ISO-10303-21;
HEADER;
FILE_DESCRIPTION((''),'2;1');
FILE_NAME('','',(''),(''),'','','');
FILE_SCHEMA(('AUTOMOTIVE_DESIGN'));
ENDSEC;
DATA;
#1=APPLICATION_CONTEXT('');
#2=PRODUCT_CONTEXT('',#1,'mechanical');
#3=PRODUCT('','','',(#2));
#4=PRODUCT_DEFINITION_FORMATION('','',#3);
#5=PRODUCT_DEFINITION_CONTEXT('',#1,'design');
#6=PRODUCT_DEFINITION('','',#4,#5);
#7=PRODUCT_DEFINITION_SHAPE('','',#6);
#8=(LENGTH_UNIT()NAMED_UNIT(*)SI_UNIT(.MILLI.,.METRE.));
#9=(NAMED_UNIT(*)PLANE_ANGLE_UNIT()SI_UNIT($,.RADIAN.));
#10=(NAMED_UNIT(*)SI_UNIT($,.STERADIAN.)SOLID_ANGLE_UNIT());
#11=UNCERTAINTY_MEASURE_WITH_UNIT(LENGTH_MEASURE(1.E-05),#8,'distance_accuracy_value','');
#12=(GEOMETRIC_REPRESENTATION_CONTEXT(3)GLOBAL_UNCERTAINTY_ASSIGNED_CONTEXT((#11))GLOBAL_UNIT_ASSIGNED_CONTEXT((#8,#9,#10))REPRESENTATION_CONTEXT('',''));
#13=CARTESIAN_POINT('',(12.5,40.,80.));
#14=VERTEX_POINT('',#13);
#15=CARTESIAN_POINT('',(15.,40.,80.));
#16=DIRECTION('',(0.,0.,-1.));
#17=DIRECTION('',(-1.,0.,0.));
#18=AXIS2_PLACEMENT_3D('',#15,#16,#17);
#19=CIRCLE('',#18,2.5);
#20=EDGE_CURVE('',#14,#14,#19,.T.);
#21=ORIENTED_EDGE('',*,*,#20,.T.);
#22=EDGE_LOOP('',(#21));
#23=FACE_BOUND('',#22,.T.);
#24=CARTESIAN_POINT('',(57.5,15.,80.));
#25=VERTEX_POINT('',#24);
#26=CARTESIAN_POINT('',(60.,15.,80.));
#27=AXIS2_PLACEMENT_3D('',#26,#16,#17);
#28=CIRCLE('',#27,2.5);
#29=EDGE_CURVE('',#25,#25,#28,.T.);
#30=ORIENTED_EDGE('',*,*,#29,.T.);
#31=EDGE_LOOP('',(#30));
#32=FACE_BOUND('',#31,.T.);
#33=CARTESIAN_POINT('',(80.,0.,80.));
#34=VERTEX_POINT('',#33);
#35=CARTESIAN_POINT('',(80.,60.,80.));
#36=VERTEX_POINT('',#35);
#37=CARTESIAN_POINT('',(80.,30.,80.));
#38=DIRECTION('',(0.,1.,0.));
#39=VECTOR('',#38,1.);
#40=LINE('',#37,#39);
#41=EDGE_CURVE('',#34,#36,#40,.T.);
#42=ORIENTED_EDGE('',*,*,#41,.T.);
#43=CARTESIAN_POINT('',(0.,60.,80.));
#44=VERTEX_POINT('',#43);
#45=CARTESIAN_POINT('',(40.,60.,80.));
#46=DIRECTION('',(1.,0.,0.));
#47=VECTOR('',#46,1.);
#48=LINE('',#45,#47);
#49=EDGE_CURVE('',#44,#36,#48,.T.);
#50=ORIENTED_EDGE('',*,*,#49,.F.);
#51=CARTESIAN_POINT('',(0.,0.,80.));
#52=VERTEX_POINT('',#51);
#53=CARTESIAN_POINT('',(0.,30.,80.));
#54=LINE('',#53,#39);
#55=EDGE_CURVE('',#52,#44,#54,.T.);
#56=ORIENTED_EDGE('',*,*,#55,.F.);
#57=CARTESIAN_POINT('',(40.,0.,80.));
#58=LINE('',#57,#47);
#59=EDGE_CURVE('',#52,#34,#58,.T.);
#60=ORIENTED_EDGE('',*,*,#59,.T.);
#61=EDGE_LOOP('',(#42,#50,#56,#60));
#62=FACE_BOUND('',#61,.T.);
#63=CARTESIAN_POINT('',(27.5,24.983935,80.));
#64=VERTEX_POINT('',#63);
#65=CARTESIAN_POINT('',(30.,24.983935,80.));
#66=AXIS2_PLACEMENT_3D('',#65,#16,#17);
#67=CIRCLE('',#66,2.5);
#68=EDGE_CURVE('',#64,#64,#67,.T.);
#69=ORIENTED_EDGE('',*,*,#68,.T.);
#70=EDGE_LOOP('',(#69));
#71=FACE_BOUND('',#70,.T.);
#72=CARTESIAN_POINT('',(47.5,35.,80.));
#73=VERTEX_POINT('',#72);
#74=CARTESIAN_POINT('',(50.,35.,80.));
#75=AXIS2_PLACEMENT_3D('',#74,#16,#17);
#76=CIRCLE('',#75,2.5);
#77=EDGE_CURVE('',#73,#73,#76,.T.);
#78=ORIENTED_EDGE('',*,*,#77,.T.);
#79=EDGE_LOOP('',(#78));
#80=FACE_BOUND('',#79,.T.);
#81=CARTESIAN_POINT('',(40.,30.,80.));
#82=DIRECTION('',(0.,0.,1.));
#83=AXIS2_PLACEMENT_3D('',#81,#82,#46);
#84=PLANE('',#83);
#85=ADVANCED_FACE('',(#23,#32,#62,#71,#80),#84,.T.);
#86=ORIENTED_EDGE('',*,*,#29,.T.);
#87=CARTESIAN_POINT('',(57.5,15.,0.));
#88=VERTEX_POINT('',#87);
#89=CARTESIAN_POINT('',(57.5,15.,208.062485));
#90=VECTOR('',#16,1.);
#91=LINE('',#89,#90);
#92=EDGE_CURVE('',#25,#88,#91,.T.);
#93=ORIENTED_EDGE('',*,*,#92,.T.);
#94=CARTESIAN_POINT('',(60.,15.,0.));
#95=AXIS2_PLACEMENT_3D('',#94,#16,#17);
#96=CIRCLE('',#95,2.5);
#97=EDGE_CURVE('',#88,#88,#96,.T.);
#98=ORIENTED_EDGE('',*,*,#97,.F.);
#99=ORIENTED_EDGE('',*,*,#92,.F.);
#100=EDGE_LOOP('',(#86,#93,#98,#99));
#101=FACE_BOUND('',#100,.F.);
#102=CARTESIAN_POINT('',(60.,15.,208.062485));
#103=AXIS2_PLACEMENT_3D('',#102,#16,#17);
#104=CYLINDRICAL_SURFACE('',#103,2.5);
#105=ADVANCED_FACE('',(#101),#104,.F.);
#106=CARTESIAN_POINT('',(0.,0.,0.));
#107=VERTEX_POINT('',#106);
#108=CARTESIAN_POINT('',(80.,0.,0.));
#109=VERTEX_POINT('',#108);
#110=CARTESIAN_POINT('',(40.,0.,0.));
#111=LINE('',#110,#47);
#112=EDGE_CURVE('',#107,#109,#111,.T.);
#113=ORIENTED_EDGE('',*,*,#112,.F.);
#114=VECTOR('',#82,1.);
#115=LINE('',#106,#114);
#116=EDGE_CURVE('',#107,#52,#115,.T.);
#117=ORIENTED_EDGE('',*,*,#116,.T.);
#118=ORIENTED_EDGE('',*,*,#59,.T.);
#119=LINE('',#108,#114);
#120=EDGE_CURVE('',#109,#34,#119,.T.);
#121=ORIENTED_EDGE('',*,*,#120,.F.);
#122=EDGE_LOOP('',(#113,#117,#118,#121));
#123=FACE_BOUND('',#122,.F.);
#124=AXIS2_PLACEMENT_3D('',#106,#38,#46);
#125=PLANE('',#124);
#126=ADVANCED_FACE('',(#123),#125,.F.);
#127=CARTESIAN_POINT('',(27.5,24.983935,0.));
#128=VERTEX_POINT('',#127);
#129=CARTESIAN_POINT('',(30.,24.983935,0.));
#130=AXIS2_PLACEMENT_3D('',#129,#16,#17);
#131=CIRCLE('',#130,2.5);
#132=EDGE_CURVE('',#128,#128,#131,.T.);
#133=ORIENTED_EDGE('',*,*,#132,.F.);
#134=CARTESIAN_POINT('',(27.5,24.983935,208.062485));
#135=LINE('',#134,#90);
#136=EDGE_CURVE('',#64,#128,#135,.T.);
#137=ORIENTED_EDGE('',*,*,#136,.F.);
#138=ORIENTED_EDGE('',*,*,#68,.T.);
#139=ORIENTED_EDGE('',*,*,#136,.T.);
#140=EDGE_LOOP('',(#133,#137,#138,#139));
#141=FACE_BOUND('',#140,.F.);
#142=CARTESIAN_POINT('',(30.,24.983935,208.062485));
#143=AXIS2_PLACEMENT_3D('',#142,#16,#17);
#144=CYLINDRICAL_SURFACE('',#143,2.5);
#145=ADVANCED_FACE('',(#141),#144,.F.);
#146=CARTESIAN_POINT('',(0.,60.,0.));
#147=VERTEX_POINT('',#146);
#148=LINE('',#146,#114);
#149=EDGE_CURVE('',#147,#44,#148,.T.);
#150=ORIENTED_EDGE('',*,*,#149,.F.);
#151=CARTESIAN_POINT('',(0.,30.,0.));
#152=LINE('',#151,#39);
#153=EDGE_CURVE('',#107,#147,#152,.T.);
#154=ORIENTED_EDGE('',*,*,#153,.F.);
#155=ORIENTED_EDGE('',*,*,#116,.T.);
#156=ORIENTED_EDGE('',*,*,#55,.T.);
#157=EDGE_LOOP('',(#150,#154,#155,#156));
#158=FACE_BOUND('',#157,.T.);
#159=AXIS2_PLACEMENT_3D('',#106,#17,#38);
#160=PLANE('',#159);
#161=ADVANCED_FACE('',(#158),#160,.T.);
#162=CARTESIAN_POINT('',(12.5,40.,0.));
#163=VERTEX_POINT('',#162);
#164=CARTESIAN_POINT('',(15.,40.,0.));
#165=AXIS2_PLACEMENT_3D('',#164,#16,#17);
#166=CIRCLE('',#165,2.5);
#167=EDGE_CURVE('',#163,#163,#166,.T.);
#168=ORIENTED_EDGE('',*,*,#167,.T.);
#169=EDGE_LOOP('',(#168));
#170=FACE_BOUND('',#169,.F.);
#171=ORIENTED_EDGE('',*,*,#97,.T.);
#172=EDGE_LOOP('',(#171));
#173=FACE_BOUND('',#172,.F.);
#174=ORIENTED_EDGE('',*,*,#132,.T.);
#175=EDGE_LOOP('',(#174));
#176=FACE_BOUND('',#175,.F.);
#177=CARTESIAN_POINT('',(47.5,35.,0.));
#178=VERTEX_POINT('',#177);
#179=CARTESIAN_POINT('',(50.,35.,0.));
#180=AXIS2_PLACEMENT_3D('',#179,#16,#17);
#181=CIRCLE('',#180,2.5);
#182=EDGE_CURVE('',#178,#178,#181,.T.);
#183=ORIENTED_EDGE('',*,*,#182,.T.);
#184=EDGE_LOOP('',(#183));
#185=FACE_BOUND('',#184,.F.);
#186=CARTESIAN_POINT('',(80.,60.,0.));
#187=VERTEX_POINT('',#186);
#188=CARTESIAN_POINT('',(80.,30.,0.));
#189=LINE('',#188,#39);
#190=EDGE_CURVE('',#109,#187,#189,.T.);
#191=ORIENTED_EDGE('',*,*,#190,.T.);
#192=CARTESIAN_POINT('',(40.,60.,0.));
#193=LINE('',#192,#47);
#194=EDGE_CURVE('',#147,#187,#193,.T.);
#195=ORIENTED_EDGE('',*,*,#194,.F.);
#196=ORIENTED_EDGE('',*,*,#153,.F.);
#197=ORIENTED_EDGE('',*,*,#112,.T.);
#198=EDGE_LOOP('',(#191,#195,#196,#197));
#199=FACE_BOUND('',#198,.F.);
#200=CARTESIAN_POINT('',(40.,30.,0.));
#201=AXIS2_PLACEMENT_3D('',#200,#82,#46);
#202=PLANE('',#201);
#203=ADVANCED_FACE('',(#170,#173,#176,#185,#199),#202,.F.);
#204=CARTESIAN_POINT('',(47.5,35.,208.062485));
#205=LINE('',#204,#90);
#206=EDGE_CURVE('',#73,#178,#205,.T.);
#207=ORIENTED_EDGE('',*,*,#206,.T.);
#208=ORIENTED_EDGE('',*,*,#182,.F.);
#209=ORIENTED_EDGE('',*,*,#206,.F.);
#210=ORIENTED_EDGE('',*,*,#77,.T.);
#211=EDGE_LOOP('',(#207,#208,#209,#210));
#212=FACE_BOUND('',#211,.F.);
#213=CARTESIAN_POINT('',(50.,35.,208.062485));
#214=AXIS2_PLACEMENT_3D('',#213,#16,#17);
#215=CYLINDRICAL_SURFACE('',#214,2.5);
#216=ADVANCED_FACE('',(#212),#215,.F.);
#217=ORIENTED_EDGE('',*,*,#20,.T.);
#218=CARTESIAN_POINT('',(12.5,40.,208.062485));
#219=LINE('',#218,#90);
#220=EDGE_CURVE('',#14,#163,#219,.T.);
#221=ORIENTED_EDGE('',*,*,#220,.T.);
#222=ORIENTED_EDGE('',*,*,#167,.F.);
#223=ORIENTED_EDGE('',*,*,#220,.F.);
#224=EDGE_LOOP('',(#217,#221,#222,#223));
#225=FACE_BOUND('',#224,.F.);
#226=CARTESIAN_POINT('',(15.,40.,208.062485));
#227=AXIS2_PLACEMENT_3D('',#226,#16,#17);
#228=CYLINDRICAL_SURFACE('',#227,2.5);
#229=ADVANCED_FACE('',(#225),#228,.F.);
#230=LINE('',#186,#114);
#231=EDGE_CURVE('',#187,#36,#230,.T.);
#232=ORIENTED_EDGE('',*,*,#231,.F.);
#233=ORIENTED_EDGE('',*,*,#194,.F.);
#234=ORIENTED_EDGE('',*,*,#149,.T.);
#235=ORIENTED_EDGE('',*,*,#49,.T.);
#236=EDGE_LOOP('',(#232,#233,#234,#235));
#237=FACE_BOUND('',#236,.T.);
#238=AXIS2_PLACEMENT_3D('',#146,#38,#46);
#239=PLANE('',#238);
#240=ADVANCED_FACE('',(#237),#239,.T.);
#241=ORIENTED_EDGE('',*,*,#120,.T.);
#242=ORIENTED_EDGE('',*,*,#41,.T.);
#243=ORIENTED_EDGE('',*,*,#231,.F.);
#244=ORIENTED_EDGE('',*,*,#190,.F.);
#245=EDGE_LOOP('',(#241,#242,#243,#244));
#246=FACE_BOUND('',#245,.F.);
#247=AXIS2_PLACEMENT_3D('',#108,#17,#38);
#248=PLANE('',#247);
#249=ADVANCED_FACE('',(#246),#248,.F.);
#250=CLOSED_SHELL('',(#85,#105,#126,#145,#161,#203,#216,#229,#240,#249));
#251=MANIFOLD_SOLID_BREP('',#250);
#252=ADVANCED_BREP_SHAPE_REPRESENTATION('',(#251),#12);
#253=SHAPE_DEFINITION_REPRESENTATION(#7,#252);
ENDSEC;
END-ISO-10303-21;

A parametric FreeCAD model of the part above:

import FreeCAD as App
import Part
import Sketcher


def add_polygon(sketch, points):
    """Adds a closed chain of lines whose ends are joined by coincident constraints."""
    first, n = sketch.GeometryCount, len(points)
    for a, b in zip(points, points[1:] + points[:1]):
        sketch.addGeometry(Part.LineSegment(App.Vector(*a, 0), App.Vector(*b, 0)), False)
    for i in range(n):
        sketch.addConstraint(Sketcher.Constraint("Coincident", first + i, 2, first + (i + 1) % n, 1))

doc = App.newDocument("Part")
body = doc.addObject("PartDesign::Body", "Body")

# Sketch on XY plane
sketch1 = body.newObject("Sketcher::SketchObject", "Sketch")
sketch1.AttachmentSupport = (doc.getObject("XY_Plane"), [""])
sketch1.MapMode = "FlatFace"
add_polygon(sketch1, [(0, 60), (0, 0), (80, 0), (80, 60)])  # lines 0-3
sketch1.addConstraint([
    Sketcher.Constraint("Vertical", 0),
    Sketcher.Constraint("Horizontal", 1),
    Sketcher.Constraint("Vertical", 2),
    Sketcher.Constraint("Horizontal", 3),
    Sketcher.Constraint("Coincident", 0, 2, -1, 1),
    Sketcher.Constraint("DistanceX", 1, 1, 1, 2, 80.0),
    Sketcher.Constraint("DistanceY", 0, 2, 0, 1, 60.0),
])
pad1 = body.newObject("PartDesign::Pad", "Pad")
pad1.Profile = sketch1
pad1.Length = 80

# Sketch on XY plane
sketch2 = body.newObject("Sketcher::SketchObject", "Sketch001")
sketch2.AttachmentSupport = (doc.getObject("XY_Plane"), [""])
sketch2.MapMode = "FlatFace"
sketch2.AttachmentOffset = App.Placement(App.Vector(0, 0, 80), App.Rotation())
sketch2.addGeometry([
    Part.Circle(App.Vector(15, 40, 0), App.Vector(0, 0, 1), 2.5),
    Part.Circle(App.Vector(30, 25, 0), App.Vector(0, 0, 1), 2.5),
    Part.Circle(App.Vector(60, 15, 0), App.Vector(0, 0, 1), 2.5),
    Part.Circle(App.Vector(50, 35, 0), App.Vector(0, 0, 1), 2.5),
], False)
sketch2.addConstraint([
    Sketcher.Constraint("Equal", 0, 1),
    Sketcher.Constraint("Equal", 1, 2),
    Sketcher.Constraint("Equal", 2, 3),
    Sketcher.Constraint("Diameter", 0, 5.0),
    Sketcher.Constraint("DistanceX", -1, 1, 0, 3, 15.0),
    Sketcher.Constraint("DistanceY", -1, 1, 0, 3, 40.0),
    Sketcher.Constraint("DistanceX", -1, 1, 1, 3, 30.0),
    Sketcher.Constraint("DistanceX", -1, 1, 2, 3, 60.0),
    Sketcher.Constraint("DistanceY", -1, 1, 2, 3, 15.0),
    Sketcher.Constraint("DistanceX", -1, 1, 3, 3, 50.0),
    Sketcher.Constraint("DistanceY", -1, 1, 3, 3, 35.0),
    Sketcher.Constraint("DistanceY", -1, 1, 1, 3, 24.983935),
])
doc.recompute()
hole = body.newObject("PartDesign::Hole", "Hole")
hole.Profile = sketch2
hole.ThreadType = "None"
hole.Diameter = 5
hole.DepthType = "ThroughAll"

doc.recompute()
